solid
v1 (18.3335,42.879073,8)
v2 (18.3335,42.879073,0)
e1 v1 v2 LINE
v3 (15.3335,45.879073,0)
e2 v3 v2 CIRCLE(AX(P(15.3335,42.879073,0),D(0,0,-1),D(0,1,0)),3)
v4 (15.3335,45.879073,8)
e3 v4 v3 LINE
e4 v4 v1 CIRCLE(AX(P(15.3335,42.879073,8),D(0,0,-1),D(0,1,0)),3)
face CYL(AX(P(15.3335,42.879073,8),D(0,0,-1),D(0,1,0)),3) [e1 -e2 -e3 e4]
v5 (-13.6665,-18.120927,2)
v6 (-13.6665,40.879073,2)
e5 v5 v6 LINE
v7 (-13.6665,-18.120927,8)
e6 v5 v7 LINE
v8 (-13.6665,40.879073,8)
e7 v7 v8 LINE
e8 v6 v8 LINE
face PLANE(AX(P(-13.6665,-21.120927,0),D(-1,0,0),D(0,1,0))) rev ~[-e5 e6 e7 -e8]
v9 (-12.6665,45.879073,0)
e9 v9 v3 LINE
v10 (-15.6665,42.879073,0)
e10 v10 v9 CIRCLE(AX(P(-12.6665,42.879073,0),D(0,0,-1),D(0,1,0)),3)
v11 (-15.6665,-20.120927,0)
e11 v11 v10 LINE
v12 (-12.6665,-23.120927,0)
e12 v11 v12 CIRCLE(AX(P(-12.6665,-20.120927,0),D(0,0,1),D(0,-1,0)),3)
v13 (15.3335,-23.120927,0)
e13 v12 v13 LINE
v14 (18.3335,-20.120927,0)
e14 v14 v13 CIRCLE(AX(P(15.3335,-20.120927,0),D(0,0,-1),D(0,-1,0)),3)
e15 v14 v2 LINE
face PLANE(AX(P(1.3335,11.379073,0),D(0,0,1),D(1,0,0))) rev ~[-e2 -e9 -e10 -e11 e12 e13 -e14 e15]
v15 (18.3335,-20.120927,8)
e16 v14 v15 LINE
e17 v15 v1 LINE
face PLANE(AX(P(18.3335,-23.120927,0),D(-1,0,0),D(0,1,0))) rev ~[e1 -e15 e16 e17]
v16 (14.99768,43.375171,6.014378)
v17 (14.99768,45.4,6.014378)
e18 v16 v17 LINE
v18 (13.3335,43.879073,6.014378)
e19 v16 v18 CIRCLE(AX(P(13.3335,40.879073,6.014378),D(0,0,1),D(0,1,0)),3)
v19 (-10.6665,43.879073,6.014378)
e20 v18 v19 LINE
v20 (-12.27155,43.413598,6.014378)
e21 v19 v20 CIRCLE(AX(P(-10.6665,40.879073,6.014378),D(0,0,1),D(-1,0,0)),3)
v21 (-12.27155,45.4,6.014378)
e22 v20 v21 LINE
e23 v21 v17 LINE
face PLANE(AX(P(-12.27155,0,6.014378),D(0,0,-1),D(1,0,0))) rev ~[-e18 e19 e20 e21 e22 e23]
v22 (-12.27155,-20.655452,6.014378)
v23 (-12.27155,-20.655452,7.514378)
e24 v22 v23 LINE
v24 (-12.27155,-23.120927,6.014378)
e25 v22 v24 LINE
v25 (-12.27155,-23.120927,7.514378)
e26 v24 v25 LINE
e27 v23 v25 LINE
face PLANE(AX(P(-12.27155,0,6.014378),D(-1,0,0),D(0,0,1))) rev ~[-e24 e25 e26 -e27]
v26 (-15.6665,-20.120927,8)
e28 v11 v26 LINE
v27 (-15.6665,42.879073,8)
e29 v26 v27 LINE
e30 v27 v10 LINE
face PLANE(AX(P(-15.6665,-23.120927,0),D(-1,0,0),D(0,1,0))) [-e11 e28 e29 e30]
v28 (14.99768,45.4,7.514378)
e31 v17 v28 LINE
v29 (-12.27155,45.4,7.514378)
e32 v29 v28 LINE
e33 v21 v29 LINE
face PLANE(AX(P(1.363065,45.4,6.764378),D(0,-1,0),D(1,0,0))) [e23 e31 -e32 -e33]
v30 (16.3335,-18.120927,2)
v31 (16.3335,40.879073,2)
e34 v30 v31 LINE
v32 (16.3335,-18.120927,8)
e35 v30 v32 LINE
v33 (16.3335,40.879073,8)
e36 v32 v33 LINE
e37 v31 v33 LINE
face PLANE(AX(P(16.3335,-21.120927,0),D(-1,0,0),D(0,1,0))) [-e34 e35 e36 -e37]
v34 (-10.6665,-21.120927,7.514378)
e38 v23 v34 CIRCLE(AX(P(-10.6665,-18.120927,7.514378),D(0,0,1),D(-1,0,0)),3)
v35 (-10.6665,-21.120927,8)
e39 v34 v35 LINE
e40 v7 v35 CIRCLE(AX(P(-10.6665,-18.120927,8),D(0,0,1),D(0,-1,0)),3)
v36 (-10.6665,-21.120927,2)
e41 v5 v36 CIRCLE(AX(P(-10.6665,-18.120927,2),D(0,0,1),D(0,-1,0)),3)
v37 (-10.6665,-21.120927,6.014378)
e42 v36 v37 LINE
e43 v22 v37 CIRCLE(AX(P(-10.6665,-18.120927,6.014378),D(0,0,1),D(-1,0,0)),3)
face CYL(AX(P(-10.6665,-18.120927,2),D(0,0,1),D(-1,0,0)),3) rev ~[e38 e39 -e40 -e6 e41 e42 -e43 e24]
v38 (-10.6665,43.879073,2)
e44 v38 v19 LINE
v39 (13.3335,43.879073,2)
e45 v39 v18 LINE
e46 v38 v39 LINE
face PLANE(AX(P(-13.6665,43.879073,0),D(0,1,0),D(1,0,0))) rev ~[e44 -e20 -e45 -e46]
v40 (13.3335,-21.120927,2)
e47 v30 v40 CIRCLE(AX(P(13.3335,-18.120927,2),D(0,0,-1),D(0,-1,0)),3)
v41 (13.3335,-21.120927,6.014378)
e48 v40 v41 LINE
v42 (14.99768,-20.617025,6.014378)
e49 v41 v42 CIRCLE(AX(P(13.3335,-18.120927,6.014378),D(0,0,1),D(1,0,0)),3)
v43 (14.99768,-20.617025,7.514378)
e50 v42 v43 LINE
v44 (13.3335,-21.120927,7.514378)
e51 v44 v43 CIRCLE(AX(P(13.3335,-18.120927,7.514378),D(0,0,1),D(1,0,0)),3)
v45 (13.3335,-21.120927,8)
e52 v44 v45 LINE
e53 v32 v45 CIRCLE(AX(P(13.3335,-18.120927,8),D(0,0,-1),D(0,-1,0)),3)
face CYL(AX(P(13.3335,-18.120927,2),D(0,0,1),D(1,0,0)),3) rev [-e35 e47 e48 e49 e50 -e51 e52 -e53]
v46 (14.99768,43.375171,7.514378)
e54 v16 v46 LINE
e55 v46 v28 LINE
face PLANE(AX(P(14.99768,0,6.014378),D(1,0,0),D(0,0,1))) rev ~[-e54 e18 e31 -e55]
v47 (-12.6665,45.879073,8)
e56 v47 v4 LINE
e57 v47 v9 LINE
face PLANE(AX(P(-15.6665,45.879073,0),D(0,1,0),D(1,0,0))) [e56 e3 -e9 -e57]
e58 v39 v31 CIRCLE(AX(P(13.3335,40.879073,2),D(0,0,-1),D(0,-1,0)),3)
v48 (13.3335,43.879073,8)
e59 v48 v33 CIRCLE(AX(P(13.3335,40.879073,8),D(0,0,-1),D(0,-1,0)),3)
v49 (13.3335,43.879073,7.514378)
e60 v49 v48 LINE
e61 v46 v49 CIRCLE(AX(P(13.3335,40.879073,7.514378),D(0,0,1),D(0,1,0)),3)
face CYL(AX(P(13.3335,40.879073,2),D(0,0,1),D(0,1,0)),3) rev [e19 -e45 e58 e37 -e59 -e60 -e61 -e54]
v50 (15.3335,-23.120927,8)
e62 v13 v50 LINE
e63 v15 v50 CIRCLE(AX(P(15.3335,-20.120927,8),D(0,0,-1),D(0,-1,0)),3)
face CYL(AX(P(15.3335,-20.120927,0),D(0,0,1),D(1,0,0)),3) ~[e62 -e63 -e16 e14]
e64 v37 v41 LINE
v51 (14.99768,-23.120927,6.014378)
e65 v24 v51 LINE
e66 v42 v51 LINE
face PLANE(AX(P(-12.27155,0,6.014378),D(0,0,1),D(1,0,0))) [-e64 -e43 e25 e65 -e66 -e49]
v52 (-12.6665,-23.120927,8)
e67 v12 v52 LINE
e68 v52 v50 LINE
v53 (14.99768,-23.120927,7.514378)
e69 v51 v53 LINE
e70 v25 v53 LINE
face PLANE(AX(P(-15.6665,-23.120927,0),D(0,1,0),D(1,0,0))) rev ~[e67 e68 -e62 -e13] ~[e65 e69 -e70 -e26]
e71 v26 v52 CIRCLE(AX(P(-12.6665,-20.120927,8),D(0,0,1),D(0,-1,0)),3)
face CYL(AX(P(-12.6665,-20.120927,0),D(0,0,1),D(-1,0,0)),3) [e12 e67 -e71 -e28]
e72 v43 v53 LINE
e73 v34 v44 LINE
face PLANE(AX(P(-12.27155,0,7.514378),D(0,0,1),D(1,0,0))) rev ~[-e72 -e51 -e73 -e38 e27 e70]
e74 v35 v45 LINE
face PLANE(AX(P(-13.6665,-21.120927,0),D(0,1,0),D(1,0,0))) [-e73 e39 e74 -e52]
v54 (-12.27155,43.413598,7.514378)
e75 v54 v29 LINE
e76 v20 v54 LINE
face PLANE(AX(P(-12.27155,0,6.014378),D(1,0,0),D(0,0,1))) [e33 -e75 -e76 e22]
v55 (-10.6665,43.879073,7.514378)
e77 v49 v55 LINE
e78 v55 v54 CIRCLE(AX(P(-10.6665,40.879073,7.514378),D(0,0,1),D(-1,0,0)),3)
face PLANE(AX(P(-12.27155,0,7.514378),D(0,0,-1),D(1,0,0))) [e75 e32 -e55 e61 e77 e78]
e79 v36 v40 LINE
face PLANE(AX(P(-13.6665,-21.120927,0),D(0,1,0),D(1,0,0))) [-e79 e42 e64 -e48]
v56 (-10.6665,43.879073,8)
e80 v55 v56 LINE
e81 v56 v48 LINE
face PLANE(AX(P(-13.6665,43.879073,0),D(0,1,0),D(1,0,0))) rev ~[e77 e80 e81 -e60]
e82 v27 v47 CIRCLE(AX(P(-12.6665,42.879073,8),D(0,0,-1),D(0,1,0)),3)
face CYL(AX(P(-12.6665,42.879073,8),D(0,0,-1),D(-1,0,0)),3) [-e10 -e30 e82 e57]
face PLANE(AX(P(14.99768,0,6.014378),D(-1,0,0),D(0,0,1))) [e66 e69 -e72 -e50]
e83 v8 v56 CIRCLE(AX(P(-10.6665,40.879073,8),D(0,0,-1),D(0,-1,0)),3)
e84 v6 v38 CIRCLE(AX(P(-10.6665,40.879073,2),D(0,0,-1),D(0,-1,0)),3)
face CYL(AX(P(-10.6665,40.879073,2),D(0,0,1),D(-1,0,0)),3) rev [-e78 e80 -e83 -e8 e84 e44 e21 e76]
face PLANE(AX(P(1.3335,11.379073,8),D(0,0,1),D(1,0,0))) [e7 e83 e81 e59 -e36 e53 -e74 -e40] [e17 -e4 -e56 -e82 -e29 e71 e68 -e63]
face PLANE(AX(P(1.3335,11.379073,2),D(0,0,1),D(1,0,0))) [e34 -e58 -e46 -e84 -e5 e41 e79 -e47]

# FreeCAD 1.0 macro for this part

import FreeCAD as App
import Part
import Sketcher

V = App.Vector


def edges_at(feature, points):
    """Names of the edges that pass closest to the given points."""
    edges = feature.Shape.Edges
    near = lambda p: min(range(len(edges)), key=lambda i: edges[i].distToShape(Part.Vertex(*p))[0])
    return sorted({f"Edge{near(p) + 1}" for p in points})


def add_polygon(sketch, points):
    """Adds a closed chain of lines whose ends are joined by coincident constraints."""
    first, n = sketch.GeometryCount, len(points)
    for a, b in zip(points, points[1:] + points[:1]):
        sketch.addGeometry(Part.LineSegment(App.Vector(*a, 0), App.Vector(*b, 0)), False)
    for i in range(n):
        sketch.addConstraint(Sketcher.Constraint("Coincident", first + i, 2, first + (i + 1) % n, 1))

doc = App.newDocument("Part")
body = doc.addObject("PartDesign::Body", "Body")

# Sketch on XY plane
sketch1 = body.newObject("Sketcher::SketchObject", "Sketch")
sketch1.AttachmentSupport = (doc.getObject("XY_Plane"), [""])
sketch1.MapMode = "FlatFace"
add_polygon(sketch1, [(-15.6665, 45.879073), (-15.6665, -23.120927), (18.3335, -23.120927), (18.3335, 45.879073)])  # lines 0-3
add_polygon(sketch1, [(16.3335, -21.120927), (-13.6665, -21.120927), (-13.6665, 43.879073), (16.3335, 43.879073)])  # lines 4-7
sketch1.addConstraint(Sketcher.Constraint("Vertical", 0))
sketch1.addConstraint(Sketcher.Constraint("Horizontal", 1))
sketch1.addConstraint(Sketcher.Constraint("Vertical", 2))
sketch1.addConstraint(Sketcher.Constraint("Horizontal", 3))
sketch1.addConstraint(Sketcher.Constraint("Horizontal", 4))
sketch1.addConstraint(Sketcher.Constraint("Vertical", 5))
sketch1.addConstraint(Sketcher.Constraint("Horizontal", 6))
sketch1.addConstraint(Sketcher.Constraint("Vertical", 7))
sketch1.addConstraint(Sketcher.Constraint("DistanceX", 1, 1, 1, 2, 34.0))
sketch1.addConstraint(Sketcher.Constraint("DistanceX", 4, 2, 4, 1, 30.0))
sketch1.addConstraint(Sketcher.Constraint("DistanceY", 0, 2, 0, 1, 69.0))
sketch1.addConstraint(Sketcher.Constraint("DistanceY", 5, 1, 5, 2, 65.0))
sketch1.addConstraint(Sketcher.Constraint("DistanceX", 0, 2, 4, 2, 2.0))
sketch1.addConstraint(Sketcher.Constraint("DistanceY", 0, 2, 4, 2, 2.0))
sketch1.addConstraint(Sketcher.Constraint("DistanceX", 0, 2, -1, 1, 15.6665))
sketch1.addConstraint(Sketcher.Constraint("DistanceY", 0, 2, -1, 1, 23.120927))
pad1 = body.newObject("PartDesign::Pad", "Pad")
pad1.Profile = sketch1
pad1.Length = 8

# Sketch on XY plane
sketch2 = body.newObject("Sketcher::SketchObject", "Sketch001")
sketch2.AttachmentSupport = (doc.getObject("XY_Plane"), [""])
sketch2.MapMode = "FlatFace"
add_polygon(sketch2, [(-15.6665, 45.879073), (-15.6665, -23.120927), (18.3335, -23.120927), (18.3335, 45.879073)])  # lines 0-3
sketch2.addConstraint(Sketcher.Constraint("Vertical", 0))
sketch2.addConstraint(Sketcher.Constraint("Horizontal", 1))
sketch2.addConstraint(Sketcher.Constraint("Vertical", 2))
sketch2.addConstraint(Sketcher.Constraint("Horizontal", 3))
sketch2.addConstraint(Sketcher.Constraint("DistanceX", 1, 1, 1, 2, 34.0))
sketch2.addConstraint(Sketcher.Constraint("DistanceY", 0, 2, 0, 1, 69.0))
sketch2.addConstraint(Sketcher.Constraint("DistanceX", 0, 2, -1, 1, 15.6665))
sketch2.addConstraint(Sketcher.Constraint("DistanceY", 0, 2, -1, 1, 23.120927))
pad2 = body.newObject("PartDesign::Pad", "Pad001")
pad2.Profile = sketch2
pad2.Length = 2
doc.recompute()

fillet = body.newObject("PartDesign::Fillet", "Fillet")
fillet.Base = (pad2, edges_at(pad2, [
    (-15.666, 45.879, 4),
    (18.334, 45.879, 4),
    (18.334, -23.121, 4),
    (-15.666, -23.121, 4),
    (-13.666, 43.879, 5),
    (16.334, 43.879, 5),
    (16.334, -21.121, 5),
    (-13.666, -21.121, 5),
]))
fillet.Radius = 3

# Sketch on XZ plane
sketch3 = body.newObject("Sketcher::SketchObject", "Sketch002")
sketch3.AttachmentSupport = (doc.getObject("XZ_Plane"), [""])
sketch3.MapMode = "FlatFace"
add_polygon(sketch3, [(-12.27155, 7.514378), (-12.27155, 6.014378), (14.99768, 6.014378), (14.99768, 7.514378)])  # lines 0-3
sketch3.addConstraint(Sketcher.Constraint("Vertical", 0))
sketch3.addConstraint(Sketcher.Constraint("Horizontal", 1))
sketch3.addConstraint(Sketcher.Constraint("Vertical", 2))
sketch3.addConstraint(Sketcher.Constraint("Horizontal", 3))
sketch3.addConstraint(Sketcher.Constraint("DistanceY", 0, 2, 0, 1, 1.5))
sketch3.addConstraint(Sketcher.Constraint("DistanceX", 1, 1, 1, 2, 27.269229))
sketch3.addConstraint(Sketcher.Constraint("DistanceX", 0, 2, -1, 1, 12.27155))
sketch3.addConstraint(Sketcher.Constraint("DistanceY", -1, 1, 0, 2, 6.014378))
pocket1 = body.newObject("PartDesign::Pocket", "Pocket")
pocket1.Profile = sketch3
pocket1.Length = 25
pocket1.Reversed = True

# Sketch on XZ plane
sketch4 = body.newObject("Sketcher::SketchObject", "Sketch003")
sketch4.AttachmentSupport = (doc.getObject("XZ_Plane"), [""])
sketch4.MapMode = "FlatFace"
add_polygon(sketch4, [(-12.27155, 7.514378), (-12.27155, 6.014378), (14.99768, 6.014378), (14.99768, 7.514378)])  # lines 0-3
sketch4.addConstraint(Sketcher.Constraint("Vertical", 0))
sketch4.addConstraint(Sketcher.Constraint("Horizontal", 1))
sketch4.addConstraint(Sketcher.Constraint("Vertical", 2))
sketch4.addConstraint(Sketcher.Constraint("Horizontal", 3))
sketch4.addConstraint(Sketcher.Constraint("DistanceY", 0, 2, 0, 1, 1.5))
sketch4.addConstraint(Sketcher.Constraint("DistanceX", 1, 1, 1, 2, 27.269229))
sketch4.addConstraint(Sketcher.Constraint("DistanceX", 0, 2, -1, 1, 12.27155))
sketch4.addConstraint(Sketcher.Constraint("DistanceY", -1, 1, 0, 2, 6.014378))
pocket2 = body.newObject("PartDesign::Pocket", "Pocket001")
pocket2.Profile = sketch4
pocket2.Length = 45.4

doc.recompute()
